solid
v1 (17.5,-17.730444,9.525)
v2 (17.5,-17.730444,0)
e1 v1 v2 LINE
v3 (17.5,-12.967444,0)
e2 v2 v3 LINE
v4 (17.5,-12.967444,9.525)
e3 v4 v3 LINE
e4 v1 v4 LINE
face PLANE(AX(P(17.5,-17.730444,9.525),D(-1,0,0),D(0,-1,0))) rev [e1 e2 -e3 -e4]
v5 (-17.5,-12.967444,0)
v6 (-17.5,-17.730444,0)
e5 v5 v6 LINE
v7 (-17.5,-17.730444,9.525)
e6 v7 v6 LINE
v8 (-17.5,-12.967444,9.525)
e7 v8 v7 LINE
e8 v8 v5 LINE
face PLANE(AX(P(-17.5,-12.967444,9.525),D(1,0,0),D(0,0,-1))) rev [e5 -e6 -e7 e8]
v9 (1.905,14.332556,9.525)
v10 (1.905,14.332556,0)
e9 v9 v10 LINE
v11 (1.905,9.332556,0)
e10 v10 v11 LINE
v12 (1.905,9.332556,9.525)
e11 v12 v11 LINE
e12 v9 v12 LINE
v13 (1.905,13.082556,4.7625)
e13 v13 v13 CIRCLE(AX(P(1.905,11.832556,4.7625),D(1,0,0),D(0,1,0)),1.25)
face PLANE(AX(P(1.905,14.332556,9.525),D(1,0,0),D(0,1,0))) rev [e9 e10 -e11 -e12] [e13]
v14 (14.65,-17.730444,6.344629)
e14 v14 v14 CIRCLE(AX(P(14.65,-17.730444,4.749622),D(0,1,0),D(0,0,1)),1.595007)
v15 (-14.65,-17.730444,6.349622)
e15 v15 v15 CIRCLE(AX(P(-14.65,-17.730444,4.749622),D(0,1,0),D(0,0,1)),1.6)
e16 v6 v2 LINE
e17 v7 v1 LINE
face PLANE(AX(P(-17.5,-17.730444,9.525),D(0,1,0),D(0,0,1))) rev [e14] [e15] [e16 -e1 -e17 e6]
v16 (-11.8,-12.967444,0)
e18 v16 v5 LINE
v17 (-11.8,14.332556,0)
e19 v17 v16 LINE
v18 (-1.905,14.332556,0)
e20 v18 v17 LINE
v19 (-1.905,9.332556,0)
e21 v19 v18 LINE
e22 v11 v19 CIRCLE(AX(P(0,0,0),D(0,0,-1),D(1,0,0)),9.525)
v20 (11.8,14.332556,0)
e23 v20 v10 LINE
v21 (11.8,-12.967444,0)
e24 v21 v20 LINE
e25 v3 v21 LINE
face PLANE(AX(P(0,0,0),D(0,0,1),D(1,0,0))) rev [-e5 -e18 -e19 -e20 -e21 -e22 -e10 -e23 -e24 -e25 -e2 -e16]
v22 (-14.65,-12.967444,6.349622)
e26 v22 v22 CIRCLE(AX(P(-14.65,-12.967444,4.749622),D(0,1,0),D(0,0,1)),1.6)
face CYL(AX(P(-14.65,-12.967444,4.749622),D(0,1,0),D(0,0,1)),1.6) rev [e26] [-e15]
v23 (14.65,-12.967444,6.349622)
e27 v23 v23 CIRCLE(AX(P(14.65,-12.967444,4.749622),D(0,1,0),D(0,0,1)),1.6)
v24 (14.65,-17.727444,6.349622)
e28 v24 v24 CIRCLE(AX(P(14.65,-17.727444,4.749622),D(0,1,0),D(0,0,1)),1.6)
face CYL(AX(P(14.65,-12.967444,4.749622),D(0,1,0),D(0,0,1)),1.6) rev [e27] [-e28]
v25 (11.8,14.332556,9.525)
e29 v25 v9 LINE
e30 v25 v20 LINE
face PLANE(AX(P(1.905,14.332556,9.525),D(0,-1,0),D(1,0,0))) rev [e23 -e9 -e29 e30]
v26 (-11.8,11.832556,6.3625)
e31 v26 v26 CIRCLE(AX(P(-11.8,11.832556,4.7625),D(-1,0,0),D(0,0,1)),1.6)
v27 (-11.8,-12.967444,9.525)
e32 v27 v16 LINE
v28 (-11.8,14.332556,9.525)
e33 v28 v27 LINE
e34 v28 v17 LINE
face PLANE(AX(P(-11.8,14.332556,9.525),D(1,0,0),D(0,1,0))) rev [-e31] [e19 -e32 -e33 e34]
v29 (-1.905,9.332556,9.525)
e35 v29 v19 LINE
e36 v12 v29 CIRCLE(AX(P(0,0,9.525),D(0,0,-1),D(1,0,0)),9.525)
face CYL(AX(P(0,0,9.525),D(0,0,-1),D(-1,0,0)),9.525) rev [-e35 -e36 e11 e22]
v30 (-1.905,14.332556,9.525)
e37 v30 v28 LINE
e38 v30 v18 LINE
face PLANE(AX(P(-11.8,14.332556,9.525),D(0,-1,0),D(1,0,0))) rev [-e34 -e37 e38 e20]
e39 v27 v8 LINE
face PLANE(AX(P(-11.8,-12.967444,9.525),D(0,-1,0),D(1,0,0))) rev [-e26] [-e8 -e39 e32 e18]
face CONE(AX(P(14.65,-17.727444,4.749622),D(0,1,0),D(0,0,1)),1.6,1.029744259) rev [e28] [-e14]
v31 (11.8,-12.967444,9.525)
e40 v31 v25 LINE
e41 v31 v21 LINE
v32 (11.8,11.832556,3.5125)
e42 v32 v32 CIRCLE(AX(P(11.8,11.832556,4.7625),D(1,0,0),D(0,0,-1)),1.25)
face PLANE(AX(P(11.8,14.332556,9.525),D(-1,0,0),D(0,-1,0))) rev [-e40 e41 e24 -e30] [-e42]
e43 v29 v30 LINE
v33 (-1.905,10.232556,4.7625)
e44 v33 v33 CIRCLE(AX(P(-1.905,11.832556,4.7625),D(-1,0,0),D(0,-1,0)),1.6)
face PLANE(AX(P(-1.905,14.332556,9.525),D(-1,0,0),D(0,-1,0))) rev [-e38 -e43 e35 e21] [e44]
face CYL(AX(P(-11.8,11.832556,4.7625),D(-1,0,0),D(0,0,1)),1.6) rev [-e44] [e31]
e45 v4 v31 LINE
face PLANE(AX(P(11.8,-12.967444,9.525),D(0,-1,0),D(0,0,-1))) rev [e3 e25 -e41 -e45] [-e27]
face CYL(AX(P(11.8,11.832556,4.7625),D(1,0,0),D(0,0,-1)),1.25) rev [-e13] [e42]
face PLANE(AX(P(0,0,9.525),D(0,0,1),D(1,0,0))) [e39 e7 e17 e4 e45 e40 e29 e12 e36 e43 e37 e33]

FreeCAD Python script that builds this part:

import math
import FreeCAD as App
import Part
import Sketcher
from FreeCAD import Vector
Q = App.Units.Quantity

doc = App.newDocument("Part")
params = doc.addObject("Spreadsheet::Sheet", "Params")
for row, (alias, value) in enumerate([
    ("sketch1_width", "35 mm"),
    ("sketch1_height", "5 mm"),
    ("sketch1_width2", "5.7 mm"),
    ("sketch1_height2", "27.3 mm"),
    ("pad1_length", "9.525 mm"),
    ("sketch2_diameter", "2.5 mm"),
    ("hole_diameter", "2.5 mm"),
    ("hole_depth", "9.895 mm"),
    ("sketch3_diameter", "3.2 mm"),
    ("hole2_diameter", "3.2 mm"),
    ("sketch4_diameter", "3.2 mm"),
    ("hole3_diameter", "3.2 mm"),
    ("hole3_depth", "4.76 mm"),
    ("sketch5_diameter", "3.2 mm"),
    ("hole4_diameter", "3.2 mm"),
    ("hole4_depth", "9.895 mm"),
], start=1):
    params.set(f"A{row}", alias)
    params.set(f"B{row}", "=" + value)
    params.setAlias(f"B{row}", alias)

body = doc.addObject("PartDesign::Body", "Body")

sketch1 = body.newObject("Sketcher::SketchObject", "Sketch")
sketch1.AttachmentSupport = (doc.getObject("XY_Plane"), [""])
sketch1.MapMode = "FlatFace"
sketch1.addGeometry(Part.LineSegment(Vector(-1.9, 14.3, 0), Vector(-11.8, 14.3, 0)), False)
sketch1.addGeometry(Part.LineSegment(Vector(-11.8, 14.3, 0), Vector(-11.8, -13, 0)), False)
sketch1.addGeometry(Part.LineSegment(Vector(-11.8, -13, 0), Vector(-17.5, -13, 0)), False)
sketch1.addGeometry(Part.LineSegment(Vector(-17.5, -13, 0), Vector(-17.5, -17.7, 0)), False)
sketch1.addGeometry(Part.LineSegment(Vector(-17.5, -17.7, 0), Vector(17.5, -17.7, 0)), False)
sketch1.addGeometry(Part.LineSegment(Vector(17.5, -17.7, 0), Vector(17.5, -13, 0)), False)
sketch1.addGeometry(Part.LineSegment(Vector(17.5, -13, 0), Vector(11.8, -13, 0)), False)
sketch1.addGeometry(Part.LineSegment(Vector(11.8, -13, 0), Vector(11.8, 14.3, 0)), False)
sketch1.addGeometry(Part.LineSegment(Vector(11.8, 14.3, 0), Vector(1.9, 14.3, 0)), False)
sketch1.addGeometry(Part.LineSegment(Vector(1.9, 14.3, 0), Vector(1.9, 9.3, 0)), False)
sketch1.addGeometry(Part.ArcOfCircle(Part.Circle(Vector(0, 0, 0), Vector(0, 0, 1), 9.5), math.radians(102), math.radians(438)), False)
sketch1.addGeometry(Part.LineSegment(Vector(-1.9, 9.3, 0), Vector(-1.9, 14.3, 0)), False)
sketch1.addConstraint(Sketcher.Constraint("Coincident", 0, 2, 1, 1))
sketch1.addConstraint(Sketcher.Constraint("Coincident", 1, 2, 2, 1))
sketch1.addConstraint(Sketcher.Constraint("Coincident", 2, 2, 3, 1))
sketch1.addConstraint(Sketcher.Constraint("Coincident", 3, 2, 4, 1))
sketch1.addConstraint(Sketcher.Constraint("Coincident", 4, 2, 5, 1))
sketch1.addConstraint(Sketcher.Constraint("Coincident", 5, 2, 6, 1))
sketch1.addConstraint(Sketcher.Constraint("Coincident", 6, 2, 7, 1))
sketch1.addConstraint(Sketcher.Constraint("Coincident", 7, 2, 8, 1))
sketch1.addConstraint(Sketcher.Constraint("Coincident", 8, 2, 9, 1))
sketch1.addConstraint(Sketcher.Constraint("Coincident", 9, 2, 10, 2))
sketch1.addConstraint(Sketcher.Constraint("Coincident", 10, 1, 11, 1))
sketch1.addConstraint(Sketcher.Constraint("Coincident", 11, 2, 0, 1))
sketch1.addConstraint(Sketcher.Constraint("Horizontal", 0))
sketch1.addConstraint(Sketcher.Constraint("Vertical", 1))
sketch1.addConstraint(Sketcher.Constraint("Horizontal", 2))
sketch1.addConstraint(Sketcher.Constraint("Vertical", 3))
sketch1.addConstraint(Sketcher.Constraint("Horizontal", 4))
sketch1.addConstraint(Sketcher.Constraint("Vertical", 5))
sketch1.addConstraint(Sketcher.Constraint("Horizontal", 6))
sketch1.addConstraint(Sketcher.Constraint("Vertical", 7))
sketch1.addConstraint(Sketcher.Constraint("Horizontal", 8))
sketch1.addConstraint(Sketcher.Constraint("Vertical", 9))
sketch1.addConstraint(Sketcher.Constraint("Vertical", 11))
sketch1.addConstraint(Sketcher.Constraint("Coincident", 10, 3, -1, 1))
sketch1.addConstraint(Sketcher.Constraint("Symmetric", 2, 2, 5, 2, -2))
sketch1.addConstraint(Sketcher.Constraint("Symmetric", 0, 2, 7, 2, -2))
sketch1.addConstraint(Sketcher.Constraint("Horizontal", 9, 2, 10, 1))
sketch1.addConstraint(Sketcher.Constraint("DistanceX", 4, 1, 4, 2, Q("35 mm")))
sketch1.addConstraint(Sketcher.Constraint("DistanceY", 9, 2, 9, 1, Q("5 mm")))
sketch1.addConstraint(Sketcher.Constraint("DistanceX", 2, 2, 2, 1, Q("5.7 mm")))
sketch1.addConstraint(Sketcher.Constraint("DistanceY", 1, 2, 1, 1, Q("27.3 mm")))
sketch1.addConstraint(Sketcher.Constraint("Radius", 10, Q("9.525 mm")))
sketch1.addConstraint(Sketcher.Constraint("DistanceX", 0, 2, 0, 1, Q("9.895 mm")))
sketch1.addConstraint(Sketcher.Constraint("DistanceY", 3, 2, 3, 1, Q("4.763 mm")))
sketch1.setExpression("Constraints[27]", "Params.sketch1_width")
sketch1.setExpression("Constraints[28]", "Params.sketch1_height")
sketch1.setExpression("Constraints[29]", "Params.sketch1_width2")
sketch1.setExpression("Constraints[30]", "Params.sketch1_height2")
pad1 = body.newObject("PartDesign::Pad", "Pad")
pad1.Profile = sketch1
pad1.setExpression("Length", "Params.pad1_length")

sketch2 = body.newObject("Sketcher::SketchObject", "Sketch001")
sketch2.AttachmentSupport = (doc.getObject("YZ_Plane"), [""])
sketch2.MapMode = "FlatFace"
sketch2.AttachmentOffset = App.Placement(Vector(0, 0, 11.8), App.Rotation())
sketch2.addGeometry(Part.Circle(Vector(11.8, 4.8, 0), Vector(0, 0, 1), 1.2), False)
sketch2.addConstraint(Sketcher.Constraint("Diameter", 0, Q("2.5 mm")))
sketch2.addConstraint(Sketcher.Constraint("DistanceY", -1, 1, 0, 3, Q("4.7625 mm")))
sketch2.addConstraint(Sketcher.Constraint("DistanceX", -1, 1, 0, 3, Q("11.832556 mm")))
sketch2.setExpression("Constraints[0]", "Params.sketch2_diameter")
doc.recompute()
hole = body.newObject("PartDesign::Hole", "Hole")
hole.Profile = sketch2
hole.ThreadType = "None"
hole.setExpression("Diameter", "Params.hole_diameter")
hole.DepthType = "Dimension"
hole.setExpression("Depth", "Params.hole_depth")
hole.DrillPoint = "Flat"

sketch3 = body.newObject("Sketcher::SketchObject", "Sketch002")
sketch3.AttachmentSupport = (doc.getObject("XZ_Plane"), [""])
sketch3.MapMode = "FlatFace"
sketch3.AttachmentOffset = App.Placement(Vector(0, 0, 12.967444), App.Rotation())
sketch3.addGeometry(Part.Circle(Vector(-14.7, 4.7, 0), Vector(0, 0, 1), 1.6), False)
sketch3.addConstraint(Sketcher.Constraint("Diameter", 0, Q("3.2 mm")))
sketch3.addConstraint(Sketcher.Constraint("DistanceX", 0, 3, -1, 1, Q("14.65 mm")))
sketch3.addConstraint(Sketcher.Constraint("DistanceY", -1, 1, 0, 3, Q("4.749622 mm")))
sketch3.setExpression("Constraints[0]", "Params.sketch3_diameter")
doc.recompute()
hole2 = body.newObject("PartDesign::Hole", "Hole001")
hole2.Profile = sketch3
hole2.ThreadType = "None"
hole2.setExpression("Diameter", "Params.hole2_diameter")
hole2.DepthType = "ThroughAll"
hole2.Reversed = True

sketch4 = body.newObject("Sketcher::SketchObject", "Sketch003")
sketch4.AttachmentSupport = (doc.getObject("XZ_Plane"), [""])
sketch4.MapMode = "FlatFace"
sketch4.AttachmentOffset = App.Placement(Vector(0, 0, 12.967444), App.Rotation())
sketch4.addGeometry(Part.Circle(Vector(14.7, 4.7, 0), Vector(0, 0, 1), 1.6), False)
sketch4.addConstraint(Sketcher.Constraint("Diameter", 0, Q("3.2 mm")))
sketch4.addConstraint(Sketcher.Constraint("DistanceX", -1, 1, 0, 3, Q("14.65 mm")))
sketch4.addConstraint(Sketcher.Constraint("DistanceY", -1, 1, 0, 3, Q("4.749622 mm")))
sketch4.setExpression("Constraints[0]", "Params.sketch4_diameter")
doc.recompute()
hole3 = body.newObject("PartDesign::Hole", "Hole002")
hole3.Profile = sketch4
hole3.ThreadType = "None"
hole3.setExpression("Diameter", "Params.hole3_diameter")
hole3.DepthType = "Dimension"
hole3.setExpression("Depth", "Params.hole3_depth")
hole3.DrillPoint = "Angled"
hole3.DrillPointAngle = 118
hole3.Reversed = True

sketch5 = body.newObject("Sketcher::SketchObject", "Sketch004")
sketch5.AttachmentSupport = (doc.getObject("YZ_Plane"), [""])
sketch5.MapMode = "FlatFace"
sketch5.AttachmentOffset = App.Placement(Vector(0, 0, -11.8), App.Rotation())
sketch5.addGeometry(Part.Circle(Vector(11.8, 4.8, 0), Vector(0, 0, 1), 1.6), False)
sketch5.addConstraint(Sketcher.Constraint("Diameter", 0, Q("3.2 mm")))
sketch5.addConstraint(Sketcher.Constraint("DistanceY", -1, 1, 0, 3, Q("4.7625 mm")))
sketch5.addConstraint(Sketcher.Constraint("DistanceX", -1, 1, 0, 3, Q("11.832556 mm")))
sketch5.setExpression("Constraints[0]", "Params.sketch5_diameter")
doc.recompute()
hole4 = body.newObject("PartDesign::Hole", "Hole003")
hole4.Profile = sketch5
hole4.ThreadType = "None"
hole4.setExpression("Diameter", "Params.hole4_diameter")
hole4.DepthType = "Dimension"
hole4.setExpression("Depth", "Params.hole4_depth")
hole4.DrillPoint = "Flat"
hole4.Reversed = True

doc.recompute()
